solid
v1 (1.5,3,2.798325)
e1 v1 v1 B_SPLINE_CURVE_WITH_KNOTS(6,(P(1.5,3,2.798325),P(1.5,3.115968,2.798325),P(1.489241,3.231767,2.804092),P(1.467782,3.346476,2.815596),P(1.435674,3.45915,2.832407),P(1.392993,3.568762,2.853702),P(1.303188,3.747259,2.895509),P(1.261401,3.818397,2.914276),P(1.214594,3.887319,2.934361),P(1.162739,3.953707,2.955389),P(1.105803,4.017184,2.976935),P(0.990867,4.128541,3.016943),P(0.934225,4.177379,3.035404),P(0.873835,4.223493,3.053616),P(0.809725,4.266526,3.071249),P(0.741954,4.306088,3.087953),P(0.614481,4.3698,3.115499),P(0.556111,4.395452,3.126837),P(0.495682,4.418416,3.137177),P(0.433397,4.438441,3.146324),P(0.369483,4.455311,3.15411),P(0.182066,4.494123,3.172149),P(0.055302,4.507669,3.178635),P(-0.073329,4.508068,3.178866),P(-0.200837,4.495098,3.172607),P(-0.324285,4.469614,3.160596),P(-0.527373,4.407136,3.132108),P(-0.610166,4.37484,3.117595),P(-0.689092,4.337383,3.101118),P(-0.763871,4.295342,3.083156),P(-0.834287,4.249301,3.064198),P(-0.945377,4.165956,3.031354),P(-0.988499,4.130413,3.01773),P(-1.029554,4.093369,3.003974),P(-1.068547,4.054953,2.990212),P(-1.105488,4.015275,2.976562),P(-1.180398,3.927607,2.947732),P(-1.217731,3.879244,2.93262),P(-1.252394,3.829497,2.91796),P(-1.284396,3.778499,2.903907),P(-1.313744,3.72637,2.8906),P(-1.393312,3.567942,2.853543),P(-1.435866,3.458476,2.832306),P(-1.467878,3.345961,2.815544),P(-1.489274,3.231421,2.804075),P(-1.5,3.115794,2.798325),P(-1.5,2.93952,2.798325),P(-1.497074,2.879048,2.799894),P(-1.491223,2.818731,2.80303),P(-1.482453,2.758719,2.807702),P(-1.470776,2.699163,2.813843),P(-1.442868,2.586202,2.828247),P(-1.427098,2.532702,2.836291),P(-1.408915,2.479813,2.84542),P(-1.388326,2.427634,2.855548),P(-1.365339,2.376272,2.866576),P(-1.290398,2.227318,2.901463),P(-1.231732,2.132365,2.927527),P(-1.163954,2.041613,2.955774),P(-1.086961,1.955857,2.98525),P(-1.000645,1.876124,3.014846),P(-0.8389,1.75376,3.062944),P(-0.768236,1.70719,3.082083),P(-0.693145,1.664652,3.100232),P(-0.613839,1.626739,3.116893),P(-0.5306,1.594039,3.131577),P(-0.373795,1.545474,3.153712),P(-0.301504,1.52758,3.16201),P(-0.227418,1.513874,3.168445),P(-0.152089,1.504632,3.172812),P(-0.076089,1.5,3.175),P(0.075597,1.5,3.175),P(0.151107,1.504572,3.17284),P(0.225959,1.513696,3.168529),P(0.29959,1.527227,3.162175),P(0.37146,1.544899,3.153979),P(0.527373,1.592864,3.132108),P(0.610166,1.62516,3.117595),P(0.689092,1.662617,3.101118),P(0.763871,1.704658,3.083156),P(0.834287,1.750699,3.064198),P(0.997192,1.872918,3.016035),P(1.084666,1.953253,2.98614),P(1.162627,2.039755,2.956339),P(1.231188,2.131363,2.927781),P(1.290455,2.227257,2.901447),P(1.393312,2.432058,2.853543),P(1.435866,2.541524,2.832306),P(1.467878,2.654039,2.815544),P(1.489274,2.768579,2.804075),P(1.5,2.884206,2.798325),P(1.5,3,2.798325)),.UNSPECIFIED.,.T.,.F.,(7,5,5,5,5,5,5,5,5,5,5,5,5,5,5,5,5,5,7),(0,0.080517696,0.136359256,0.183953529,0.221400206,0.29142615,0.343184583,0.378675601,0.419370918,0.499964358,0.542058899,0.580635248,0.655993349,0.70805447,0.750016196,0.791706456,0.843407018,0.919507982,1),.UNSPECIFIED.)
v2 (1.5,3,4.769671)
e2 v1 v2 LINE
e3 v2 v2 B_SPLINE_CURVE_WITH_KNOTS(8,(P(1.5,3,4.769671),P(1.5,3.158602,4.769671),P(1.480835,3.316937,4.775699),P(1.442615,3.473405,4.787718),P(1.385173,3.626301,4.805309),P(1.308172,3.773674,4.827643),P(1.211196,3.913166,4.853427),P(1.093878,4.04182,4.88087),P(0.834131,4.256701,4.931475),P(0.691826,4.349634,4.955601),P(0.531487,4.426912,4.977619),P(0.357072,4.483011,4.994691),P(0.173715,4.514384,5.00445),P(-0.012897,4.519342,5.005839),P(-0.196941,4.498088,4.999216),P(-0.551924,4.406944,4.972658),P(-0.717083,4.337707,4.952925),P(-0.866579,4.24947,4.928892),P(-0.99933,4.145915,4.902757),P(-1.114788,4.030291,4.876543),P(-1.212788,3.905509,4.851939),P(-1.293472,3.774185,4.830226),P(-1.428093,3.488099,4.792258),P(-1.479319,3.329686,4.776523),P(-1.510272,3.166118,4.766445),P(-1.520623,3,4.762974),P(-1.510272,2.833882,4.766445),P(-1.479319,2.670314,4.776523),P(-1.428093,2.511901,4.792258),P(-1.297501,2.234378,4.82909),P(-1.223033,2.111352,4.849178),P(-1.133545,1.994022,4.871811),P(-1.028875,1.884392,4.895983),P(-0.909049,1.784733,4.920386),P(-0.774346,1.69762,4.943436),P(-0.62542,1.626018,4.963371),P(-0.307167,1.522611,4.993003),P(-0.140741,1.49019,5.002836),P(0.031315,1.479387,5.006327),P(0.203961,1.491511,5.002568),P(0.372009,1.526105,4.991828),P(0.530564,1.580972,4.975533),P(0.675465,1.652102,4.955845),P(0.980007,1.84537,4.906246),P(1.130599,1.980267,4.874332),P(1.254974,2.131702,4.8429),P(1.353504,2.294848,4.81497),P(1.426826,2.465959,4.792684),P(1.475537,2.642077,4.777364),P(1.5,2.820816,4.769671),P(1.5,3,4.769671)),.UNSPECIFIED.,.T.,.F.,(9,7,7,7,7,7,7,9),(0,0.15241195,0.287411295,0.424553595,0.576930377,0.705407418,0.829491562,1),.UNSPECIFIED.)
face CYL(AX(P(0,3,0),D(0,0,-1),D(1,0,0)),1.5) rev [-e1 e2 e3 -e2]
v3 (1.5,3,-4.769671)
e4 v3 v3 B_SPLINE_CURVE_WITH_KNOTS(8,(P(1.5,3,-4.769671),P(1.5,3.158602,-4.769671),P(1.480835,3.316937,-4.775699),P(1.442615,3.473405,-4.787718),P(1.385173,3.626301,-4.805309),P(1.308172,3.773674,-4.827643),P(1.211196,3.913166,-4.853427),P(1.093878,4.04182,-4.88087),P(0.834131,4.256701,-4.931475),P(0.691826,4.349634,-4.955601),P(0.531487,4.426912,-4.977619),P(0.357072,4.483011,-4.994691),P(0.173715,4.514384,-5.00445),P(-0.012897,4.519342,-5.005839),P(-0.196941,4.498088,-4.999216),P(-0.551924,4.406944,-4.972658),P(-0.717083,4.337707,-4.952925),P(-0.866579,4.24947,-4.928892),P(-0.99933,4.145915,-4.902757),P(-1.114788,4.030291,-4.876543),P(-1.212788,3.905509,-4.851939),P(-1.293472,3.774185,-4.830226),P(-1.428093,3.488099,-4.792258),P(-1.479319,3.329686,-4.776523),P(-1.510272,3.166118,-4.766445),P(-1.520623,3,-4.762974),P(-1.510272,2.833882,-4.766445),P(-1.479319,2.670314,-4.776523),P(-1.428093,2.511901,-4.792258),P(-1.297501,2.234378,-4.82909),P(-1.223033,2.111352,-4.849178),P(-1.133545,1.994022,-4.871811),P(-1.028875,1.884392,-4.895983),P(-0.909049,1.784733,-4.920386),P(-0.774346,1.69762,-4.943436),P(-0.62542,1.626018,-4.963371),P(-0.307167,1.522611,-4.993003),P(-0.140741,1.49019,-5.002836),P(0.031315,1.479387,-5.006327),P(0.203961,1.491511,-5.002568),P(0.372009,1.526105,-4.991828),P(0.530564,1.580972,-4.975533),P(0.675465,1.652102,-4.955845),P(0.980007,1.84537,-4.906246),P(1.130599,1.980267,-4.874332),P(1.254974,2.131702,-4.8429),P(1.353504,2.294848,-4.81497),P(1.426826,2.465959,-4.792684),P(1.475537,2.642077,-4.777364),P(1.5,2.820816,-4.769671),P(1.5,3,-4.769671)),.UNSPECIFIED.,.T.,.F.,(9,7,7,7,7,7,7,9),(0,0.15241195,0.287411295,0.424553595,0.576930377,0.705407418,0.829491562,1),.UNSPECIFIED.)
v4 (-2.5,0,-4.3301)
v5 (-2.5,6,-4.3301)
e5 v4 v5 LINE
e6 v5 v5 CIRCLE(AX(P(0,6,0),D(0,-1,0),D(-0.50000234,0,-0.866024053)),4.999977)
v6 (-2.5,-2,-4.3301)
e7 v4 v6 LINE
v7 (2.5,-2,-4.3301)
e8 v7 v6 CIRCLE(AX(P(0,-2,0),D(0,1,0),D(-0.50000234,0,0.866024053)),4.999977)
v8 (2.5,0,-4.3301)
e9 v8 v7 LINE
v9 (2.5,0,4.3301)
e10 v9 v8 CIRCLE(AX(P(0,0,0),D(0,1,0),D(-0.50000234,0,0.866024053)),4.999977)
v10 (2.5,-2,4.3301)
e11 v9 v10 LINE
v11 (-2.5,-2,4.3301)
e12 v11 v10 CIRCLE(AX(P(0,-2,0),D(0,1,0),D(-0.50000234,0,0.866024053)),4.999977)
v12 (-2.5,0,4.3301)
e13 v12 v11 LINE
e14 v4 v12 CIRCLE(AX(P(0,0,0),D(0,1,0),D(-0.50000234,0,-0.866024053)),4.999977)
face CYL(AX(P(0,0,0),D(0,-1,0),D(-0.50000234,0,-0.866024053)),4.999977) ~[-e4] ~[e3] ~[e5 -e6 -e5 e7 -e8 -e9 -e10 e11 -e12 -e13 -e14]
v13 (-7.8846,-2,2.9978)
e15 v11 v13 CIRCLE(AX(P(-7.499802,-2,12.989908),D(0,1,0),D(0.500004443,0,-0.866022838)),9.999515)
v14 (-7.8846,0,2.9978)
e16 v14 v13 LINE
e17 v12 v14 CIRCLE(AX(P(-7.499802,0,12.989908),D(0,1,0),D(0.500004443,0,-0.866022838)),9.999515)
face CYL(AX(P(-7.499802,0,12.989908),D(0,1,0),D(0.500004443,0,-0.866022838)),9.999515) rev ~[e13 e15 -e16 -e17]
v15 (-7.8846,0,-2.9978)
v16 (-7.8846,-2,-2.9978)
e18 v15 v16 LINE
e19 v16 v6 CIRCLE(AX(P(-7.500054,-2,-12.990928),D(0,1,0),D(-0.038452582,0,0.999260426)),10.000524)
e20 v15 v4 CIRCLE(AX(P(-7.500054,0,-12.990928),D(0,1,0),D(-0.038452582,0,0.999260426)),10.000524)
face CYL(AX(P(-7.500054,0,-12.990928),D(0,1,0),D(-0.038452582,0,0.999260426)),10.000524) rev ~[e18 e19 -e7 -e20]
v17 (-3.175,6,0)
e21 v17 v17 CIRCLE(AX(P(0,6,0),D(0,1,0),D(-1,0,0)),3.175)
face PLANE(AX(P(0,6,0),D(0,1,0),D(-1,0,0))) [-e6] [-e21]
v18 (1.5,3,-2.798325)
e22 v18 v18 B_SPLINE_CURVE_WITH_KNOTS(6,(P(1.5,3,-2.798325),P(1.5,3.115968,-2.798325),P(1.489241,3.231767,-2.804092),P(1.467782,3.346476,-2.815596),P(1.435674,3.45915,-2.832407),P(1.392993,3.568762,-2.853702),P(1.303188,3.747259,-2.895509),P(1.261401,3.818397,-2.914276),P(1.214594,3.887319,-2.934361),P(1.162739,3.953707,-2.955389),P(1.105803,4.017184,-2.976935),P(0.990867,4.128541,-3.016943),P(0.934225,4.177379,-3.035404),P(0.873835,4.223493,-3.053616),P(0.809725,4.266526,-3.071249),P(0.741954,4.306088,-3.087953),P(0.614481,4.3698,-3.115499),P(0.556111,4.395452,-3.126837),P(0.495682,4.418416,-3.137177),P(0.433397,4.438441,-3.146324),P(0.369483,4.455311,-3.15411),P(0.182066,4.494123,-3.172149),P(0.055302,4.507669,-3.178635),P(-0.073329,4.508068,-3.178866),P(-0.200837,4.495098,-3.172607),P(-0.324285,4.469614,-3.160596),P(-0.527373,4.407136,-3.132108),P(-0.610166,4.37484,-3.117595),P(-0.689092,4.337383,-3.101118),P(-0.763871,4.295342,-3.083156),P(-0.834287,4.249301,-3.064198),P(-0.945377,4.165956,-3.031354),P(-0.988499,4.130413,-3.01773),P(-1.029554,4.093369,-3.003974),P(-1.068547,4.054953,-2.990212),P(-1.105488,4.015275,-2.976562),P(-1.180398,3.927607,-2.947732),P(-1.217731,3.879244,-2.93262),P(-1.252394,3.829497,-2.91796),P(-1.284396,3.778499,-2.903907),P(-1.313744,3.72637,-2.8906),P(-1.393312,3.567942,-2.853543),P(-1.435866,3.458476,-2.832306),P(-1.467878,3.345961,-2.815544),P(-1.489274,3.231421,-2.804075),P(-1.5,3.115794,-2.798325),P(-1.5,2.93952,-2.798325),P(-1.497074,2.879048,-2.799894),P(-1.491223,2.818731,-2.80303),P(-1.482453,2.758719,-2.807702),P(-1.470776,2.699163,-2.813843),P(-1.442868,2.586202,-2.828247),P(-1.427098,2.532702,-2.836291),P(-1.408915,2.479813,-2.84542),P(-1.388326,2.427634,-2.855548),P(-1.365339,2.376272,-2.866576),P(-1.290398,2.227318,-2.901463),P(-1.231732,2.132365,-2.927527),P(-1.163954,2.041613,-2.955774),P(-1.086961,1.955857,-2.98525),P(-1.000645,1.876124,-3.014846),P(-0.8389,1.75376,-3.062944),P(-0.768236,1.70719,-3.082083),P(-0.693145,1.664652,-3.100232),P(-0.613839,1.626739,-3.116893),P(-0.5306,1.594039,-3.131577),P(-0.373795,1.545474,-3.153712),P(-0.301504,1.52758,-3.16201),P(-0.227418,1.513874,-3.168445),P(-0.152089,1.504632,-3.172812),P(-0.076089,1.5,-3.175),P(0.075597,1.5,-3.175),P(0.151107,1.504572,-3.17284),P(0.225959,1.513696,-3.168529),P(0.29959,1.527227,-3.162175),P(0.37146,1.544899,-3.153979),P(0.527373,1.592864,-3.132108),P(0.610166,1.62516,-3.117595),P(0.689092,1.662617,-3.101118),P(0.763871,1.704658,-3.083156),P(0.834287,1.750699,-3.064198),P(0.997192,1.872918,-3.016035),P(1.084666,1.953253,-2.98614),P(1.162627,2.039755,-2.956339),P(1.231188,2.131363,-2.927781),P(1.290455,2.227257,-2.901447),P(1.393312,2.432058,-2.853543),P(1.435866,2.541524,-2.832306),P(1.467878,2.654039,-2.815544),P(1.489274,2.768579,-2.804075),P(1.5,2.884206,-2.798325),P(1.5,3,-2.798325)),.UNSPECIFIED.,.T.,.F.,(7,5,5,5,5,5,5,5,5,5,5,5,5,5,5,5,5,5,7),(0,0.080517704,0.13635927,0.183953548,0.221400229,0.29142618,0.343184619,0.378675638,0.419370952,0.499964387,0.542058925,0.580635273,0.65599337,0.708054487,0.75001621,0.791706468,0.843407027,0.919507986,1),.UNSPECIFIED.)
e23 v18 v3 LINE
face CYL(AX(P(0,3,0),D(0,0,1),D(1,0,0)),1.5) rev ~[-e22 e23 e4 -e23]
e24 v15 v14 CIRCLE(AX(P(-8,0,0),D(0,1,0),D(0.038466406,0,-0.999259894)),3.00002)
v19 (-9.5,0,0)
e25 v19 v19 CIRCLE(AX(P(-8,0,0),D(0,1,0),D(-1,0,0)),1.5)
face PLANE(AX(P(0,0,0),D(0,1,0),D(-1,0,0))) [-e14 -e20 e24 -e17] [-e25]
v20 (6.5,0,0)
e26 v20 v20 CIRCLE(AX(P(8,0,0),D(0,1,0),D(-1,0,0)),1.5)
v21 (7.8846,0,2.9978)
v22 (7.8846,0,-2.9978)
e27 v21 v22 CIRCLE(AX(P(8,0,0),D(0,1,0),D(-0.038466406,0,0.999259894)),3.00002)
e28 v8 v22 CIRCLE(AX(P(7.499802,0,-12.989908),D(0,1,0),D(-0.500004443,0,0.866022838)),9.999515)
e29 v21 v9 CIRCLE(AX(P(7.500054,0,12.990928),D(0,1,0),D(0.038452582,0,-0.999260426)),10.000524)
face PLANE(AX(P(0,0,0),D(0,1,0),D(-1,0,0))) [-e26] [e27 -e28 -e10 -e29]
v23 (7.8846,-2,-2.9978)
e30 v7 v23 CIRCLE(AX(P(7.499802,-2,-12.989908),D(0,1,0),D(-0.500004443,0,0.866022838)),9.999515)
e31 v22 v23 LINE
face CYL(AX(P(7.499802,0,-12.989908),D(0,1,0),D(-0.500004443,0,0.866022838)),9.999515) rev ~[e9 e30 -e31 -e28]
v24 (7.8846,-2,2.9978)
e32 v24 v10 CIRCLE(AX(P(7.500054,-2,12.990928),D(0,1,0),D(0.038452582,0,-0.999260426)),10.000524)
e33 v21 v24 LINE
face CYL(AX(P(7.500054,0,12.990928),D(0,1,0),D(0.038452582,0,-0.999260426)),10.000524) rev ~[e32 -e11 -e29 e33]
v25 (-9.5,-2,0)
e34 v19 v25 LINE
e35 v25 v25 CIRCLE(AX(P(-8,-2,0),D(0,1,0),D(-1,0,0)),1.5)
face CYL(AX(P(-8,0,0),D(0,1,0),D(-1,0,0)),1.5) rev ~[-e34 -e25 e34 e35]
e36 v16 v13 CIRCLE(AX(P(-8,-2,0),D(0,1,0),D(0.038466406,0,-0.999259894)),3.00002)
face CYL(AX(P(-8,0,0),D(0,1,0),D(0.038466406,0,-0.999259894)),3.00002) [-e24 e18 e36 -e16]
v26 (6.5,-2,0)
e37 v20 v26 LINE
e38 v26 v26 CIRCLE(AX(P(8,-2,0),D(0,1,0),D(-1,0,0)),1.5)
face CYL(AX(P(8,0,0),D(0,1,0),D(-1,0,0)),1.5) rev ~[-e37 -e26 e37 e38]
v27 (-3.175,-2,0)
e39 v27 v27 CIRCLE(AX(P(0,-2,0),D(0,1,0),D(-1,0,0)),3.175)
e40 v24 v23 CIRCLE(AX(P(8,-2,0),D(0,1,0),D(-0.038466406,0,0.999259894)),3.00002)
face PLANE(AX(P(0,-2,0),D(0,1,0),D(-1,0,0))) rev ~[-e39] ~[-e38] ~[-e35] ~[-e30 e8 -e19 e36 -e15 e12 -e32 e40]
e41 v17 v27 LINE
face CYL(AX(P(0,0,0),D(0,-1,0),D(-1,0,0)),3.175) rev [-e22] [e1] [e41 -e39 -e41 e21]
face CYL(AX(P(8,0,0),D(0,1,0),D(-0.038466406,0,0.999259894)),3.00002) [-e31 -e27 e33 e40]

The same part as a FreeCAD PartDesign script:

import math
import FreeCAD as App
import Part
import Sketcher

doc = App.newDocument("Part")
params = doc.addObject("Spreadsheet::Sheet", "Params")
for row, (alias, value) in enumerate([
    ("sketch1_diameter", "3 mm"),
    ("sketch1_radius", "5 mm"),
    ("sketch1_radius2", "10 mm"),
    ("sketch1_radius3", "3 mm"),
    ("sketch1_diameter2", "6.35 mm"),
    ("pad1_length", "2 mm"),
    ("sketch2_diameter", "10 mm"),
    ("sketch2_diameter2", "6.35 mm"),
    ("pad2_length", "6 mm"),
    ("sketch3_diameter", "3 mm"),
], start=1):
    params.set(f"A{row}", alias)
    params.set(f"B{row}", "=" + value)
    params.setAlias(f"B{row}", alias)

body = doc.addObject("PartDesign::Body", "Body")

# Sketch on XZ plane
sketch1 = body.newObject("Sketcher::SketchObject", "Sketch")
sketch1.AttachmentSupport = (doc.getObject("XZ_Plane"), [""])
sketch1.MapMode = "FlatFace"
sketch1.addGeometry(Part.ArcOfCircle(Part.Circle(App.Vector(0, 0, 0), App.Vector(0, 0, 1), 5), math.radians(-120), math.radians(-60)), False)
sketch1.addGeometry(Part.ArcOfCircle(Part.Circle(App.Vector(-7.5, -13, 0), App.Vector(0, 0, 1), 10), math.radians(60), math.radians(92)), False)
sketch1.addGeometry(Part.ArcOfCircle(Part.Circle(App.Vector(-8, 0, 0), App.Vector(0, 0, 1), 3), math.radians(88), math.radians(272)), False)
sketch1.addGeometry(Part.ArcOfCircle(Part.Circle(App.Vector(-7.5, 13, 0), App.Vector(0, 0, 1), 10), math.radians(-92), math.radians(-60)), False)
sketch1.addGeometry(Part.ArcOfCircle(Part.Circle(App.Vector(0, 0, 0), App.Vector(0, 0, 1), 5), math.radians(60), math.radians(120)), False)
sketch1.addGeometry(Part.ArcOfCircle(Part.Circle(App.Vector(7.5, 13, 0), App.Vector(0, 0, 1), 10), math.radians(-120), math.radians(-88)), False)
sketch1.addGeometry(Part.ArcOfCircle(Part.Circle(App.Vector(8, 0, 0), App.Vector(0, 0, 1), 3), math.radians(-92), math.radians(92)), False)
sketch1.addGeometry(Part.ArcOfCircle(Part.Circle(App.Vector(7.5, -13, 0), App.Vector(0, 0, 1), 10), math.radians(88), math.radians(120)), False)
sketch1.addGeometry(Part.Circle(App.Vector(0, 0, 0), App.Vector(0, 0, 1), 3.2), False)
sketch1.addGeometry(Part.Circle(App.Vector(-8, 0, 0), App.Vector(0, 0, 1), 1.5), False)
sketch1.addGeometry(Part.Circle(App.Vector(8, 0, 0), App.Vector(0, 0, 1), 1.5), False)
sketch1.addConstraint(Sketcher.Constraint("Tangent", 0, 1, 1, 1))
sketch1.addConstraint(Sketcher.Constraint("Tangent", 1, 2, 2, 2))
sketch1.addConstraint(Sketcher.Constraint("Tangent", 2, 1, 3, 1))
sketch1.addConstraint(Sketcher.Constraint("Tangent", 3, 2, 4, 2))
sketch1.addConstraint(Sketcher.Constraint("Tangent", 4, 1, 5, 1))
sketch1.addConstraint(Sketcher.Constraint("Tangent", 5, 2, 6, 2))
sketch1.addConstraint(Sketcher.Constraint("Tangent", 6, 1, 7, 1))
sketch1.addConstraint(Sketcher.Constraint("Tangent", 7, 2, 0, 2))
sketch1.addConstraint(Sketcher.Constraint("Coincident", 0, 3, -1, 1))
sketch1.addConstraint(Sketcher.Constraint("Coincident", 4, 3, -1, 1))
sketch1.addConstraint(Sketcher.Constraint("Coincident", 8, 3, -1, 1))
sketch1.addConstraint(Sketcher.Constraint("Coincident", 9, 3, 2, 3))
sketch1.addConstraint(Sketcher.Constraint("Coincident", 10, 3, 6, 3))
sketch1.addConstraint(Sketcher.Constraint("Equal", 1, 3))
sketch1.addConstraint(Sketcher.Constraint("Equal", 0, 4))
sketch1.addConstraint(Sketcher.Constraint("Equal", 3, 5))
sketch1.addConstraint(Sketcher.Constraint("Equal", 2, 6))
sketch1.addConstraint(Sketcher.Constraint("Equal", 5, 7))
sketch1.addConstraint(Sketcher.Constraint("Equal", 9, 10))
sketch1.addConstraint(Sketcher.Constraint("Symmetric", 2, 3, 6, 3, -1, 1))
sketch1.addConstraint(Sketcher.Constraint("PointOnObject", 2, 3, -1))
sketch1.addConstraint(Sketcher.Constraint("Diameter", 9, 3.0))
sketch1.addConstraint(Sketcher.Constraint("Radius", 0, 5.0))
sketch1.addConstraint(Sketcher.Constraint("Radius", 1, 10.0))
sketch1.addConstraint(Sketcher.Constraint("Radius", 2, 3.0))
sketch1.addConstraint(Sketcher.Constraint("Diameter", 8, 6.35))
sketch1.addConstraint(Sketcher.Constraint("DistanceX", 2, 3, -1, 1, 8.0))
sketch1.setExpression("Constraints[21]", "Params.sketch1_diameter")
sketch1.setExpression("Constraints[22]", "Params.sketch1_radius")
sketch1.setExpression("Constraints[23]", "Params.sketch1_radius2")
sketch1.setExpression("Constraints[24]", "Params.sketch1_radius3")
sketch1.setExpression("Constraints[25]", "Params.sketch1_diameter2")
pad1 = body.newObject("PartDesign::Pad", "Pad")
pad1.Profile = sketch1
pad1.setExpression("Length", "Params.pad1_length")

# Sketch on XZ plane
sketch2 = body.newObject("Sketcher::SketchObject", "Sketch001")
sketch2.AttachmentSupport = (doc.getObject("XZ_Plane"), [""])
sketch2.MapMode = "FlatFace"
sketch2.addGeometry(Part.Circle(App.Vector(0, 0, 0), App.Vector(0, 0, 1), 5), False)
sketch2.addGeometry(Part.Circle(App.Vector(0, 0, 0), App.Vector(0, 0, 1), 3.2), False)
sketch2.addConstraint(Sketcher.Constraint("Coincident", 0, 3, -1, 1))
sketch2.addConstraint(Sketcher.Constraint("Coincident", 1, 3, -1, 1))
sketch2.addConstraint(Sketcher.Constraint("Diameter", 0, 10.0))
sketch2.addConstraint(Sketcher.Constraint("Diameter", 1, 6.35))
sketch2.setExpression("Constraints[2]", "Params.sketch2_diameter")
sketch2.setExpression("Constraints[3]", "Params.sketch2_diameter2")
pad2 = body.newObject("PartDesign::Pad", "Pad001")
pad2.Profile = sketch2
pad2.setExpression("Length", "Params.pad2_length")
pad2.Reversed = True

# Sketch on XY plane
sketch3 = body.newObject("Sketcher::SketchObject", "Sketch002")
sketch3.AttachmentSupport = (doc.getObject("XY_Plane"), [""])
sketch3.MapMode = "FlatFace"
sketch3.addGeometry(Part.Circle(App.Vector(0, 3, 0), App.Vector(0, 0, 1), 1.5), False)
sketch3.addConstraint(Sketcher.Constraint("PointOnObject", 0, 3, -2))
sketch3.addConstraint(Sketcher.Constraint("Diameter", 0, 3.0))
sketch3.addConstraint(Sketcher.Constraint("DistanceY", -1, 1, 0, 3, 3.0))
sketch3.setExpression("Constraints[1]", "Params.sketch3_diameter")
pocket1 = body.newObject("PartDesign::Pocket", "Pocket")
pocket1.Profile = sketch3
pocket1.Type = "ThroughAll"
pocket1.Midplane = True

doc.recompute()
